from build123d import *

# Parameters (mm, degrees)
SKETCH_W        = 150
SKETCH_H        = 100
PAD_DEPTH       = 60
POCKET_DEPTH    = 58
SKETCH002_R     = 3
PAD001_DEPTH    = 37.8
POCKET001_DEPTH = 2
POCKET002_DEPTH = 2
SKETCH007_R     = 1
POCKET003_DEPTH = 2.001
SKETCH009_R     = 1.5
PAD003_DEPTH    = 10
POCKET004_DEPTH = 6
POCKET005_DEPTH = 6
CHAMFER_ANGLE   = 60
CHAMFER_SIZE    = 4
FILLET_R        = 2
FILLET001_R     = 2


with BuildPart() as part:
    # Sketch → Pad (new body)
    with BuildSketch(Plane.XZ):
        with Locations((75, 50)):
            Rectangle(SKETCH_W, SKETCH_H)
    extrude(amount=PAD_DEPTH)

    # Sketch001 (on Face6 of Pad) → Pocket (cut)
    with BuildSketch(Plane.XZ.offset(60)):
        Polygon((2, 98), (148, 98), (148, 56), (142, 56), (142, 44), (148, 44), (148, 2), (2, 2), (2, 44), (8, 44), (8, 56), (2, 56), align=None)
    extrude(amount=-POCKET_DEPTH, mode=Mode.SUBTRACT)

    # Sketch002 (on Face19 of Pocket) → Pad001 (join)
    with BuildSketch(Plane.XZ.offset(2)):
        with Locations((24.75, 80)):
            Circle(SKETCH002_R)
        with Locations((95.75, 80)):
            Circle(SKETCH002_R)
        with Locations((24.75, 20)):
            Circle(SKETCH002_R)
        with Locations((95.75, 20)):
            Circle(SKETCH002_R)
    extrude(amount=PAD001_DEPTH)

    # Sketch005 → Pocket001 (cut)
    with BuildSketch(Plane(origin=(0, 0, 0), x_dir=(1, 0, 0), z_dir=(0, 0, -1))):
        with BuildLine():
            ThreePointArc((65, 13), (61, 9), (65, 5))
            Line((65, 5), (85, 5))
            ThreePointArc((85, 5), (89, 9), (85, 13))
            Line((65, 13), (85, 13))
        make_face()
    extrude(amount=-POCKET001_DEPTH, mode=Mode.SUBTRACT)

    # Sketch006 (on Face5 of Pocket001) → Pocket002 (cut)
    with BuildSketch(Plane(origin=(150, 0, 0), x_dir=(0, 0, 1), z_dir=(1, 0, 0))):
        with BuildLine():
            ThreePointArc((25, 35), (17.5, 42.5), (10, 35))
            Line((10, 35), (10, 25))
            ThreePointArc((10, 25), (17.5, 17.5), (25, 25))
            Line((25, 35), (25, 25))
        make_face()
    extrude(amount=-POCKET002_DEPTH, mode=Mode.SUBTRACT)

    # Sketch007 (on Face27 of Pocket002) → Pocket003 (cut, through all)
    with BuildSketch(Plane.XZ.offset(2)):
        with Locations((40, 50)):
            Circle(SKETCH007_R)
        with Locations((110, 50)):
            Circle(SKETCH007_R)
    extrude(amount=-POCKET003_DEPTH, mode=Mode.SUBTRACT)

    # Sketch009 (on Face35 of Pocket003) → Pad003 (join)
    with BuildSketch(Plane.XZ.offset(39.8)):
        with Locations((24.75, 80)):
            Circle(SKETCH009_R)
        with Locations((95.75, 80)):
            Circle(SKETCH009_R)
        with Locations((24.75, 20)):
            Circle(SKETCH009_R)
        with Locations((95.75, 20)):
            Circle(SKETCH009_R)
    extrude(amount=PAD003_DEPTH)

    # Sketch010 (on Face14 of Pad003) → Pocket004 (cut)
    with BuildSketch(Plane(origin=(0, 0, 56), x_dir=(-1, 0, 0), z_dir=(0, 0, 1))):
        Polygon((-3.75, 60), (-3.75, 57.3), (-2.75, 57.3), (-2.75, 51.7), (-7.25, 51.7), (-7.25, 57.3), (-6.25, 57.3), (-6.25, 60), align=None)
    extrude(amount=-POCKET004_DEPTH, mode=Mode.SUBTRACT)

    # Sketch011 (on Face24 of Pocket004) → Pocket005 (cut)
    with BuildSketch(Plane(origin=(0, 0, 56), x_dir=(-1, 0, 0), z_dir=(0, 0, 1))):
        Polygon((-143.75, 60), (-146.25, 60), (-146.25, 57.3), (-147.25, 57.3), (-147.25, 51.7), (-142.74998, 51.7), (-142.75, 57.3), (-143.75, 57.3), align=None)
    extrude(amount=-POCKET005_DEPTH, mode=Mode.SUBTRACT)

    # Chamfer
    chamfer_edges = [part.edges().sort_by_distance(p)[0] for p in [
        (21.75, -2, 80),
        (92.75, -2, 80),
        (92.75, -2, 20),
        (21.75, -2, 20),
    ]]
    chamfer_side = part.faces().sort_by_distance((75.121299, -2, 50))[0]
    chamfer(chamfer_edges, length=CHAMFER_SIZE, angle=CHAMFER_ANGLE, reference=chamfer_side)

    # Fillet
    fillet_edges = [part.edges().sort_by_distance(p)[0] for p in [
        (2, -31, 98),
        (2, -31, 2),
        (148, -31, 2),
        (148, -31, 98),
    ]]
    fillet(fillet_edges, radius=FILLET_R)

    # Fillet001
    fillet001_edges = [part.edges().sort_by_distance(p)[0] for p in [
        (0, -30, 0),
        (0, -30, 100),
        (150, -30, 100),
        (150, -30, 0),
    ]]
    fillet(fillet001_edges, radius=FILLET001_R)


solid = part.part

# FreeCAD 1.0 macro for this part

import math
import FreeCAD as App
import Part
import Sketcher
from FreeCAD import Vector
Q = App.Units.Quantity


def edges_at(feature, points):
    """Names of the edges that pass closest to the given points."""
    edges = feature.Shape.Edges
    near = lambda p: min(range(len(edges)), key=lambda i: edges[i].distToShape(Part.Vertex(*p))[0])
    return sorted({f"Edge{near(p) + 1}" for p in points})

doc = App.newDocument("Part")
body = doc.addObject("PartDesign::Body", "Body")

sketch1 = doc.addObject("Sketcher::SketchObject", "Sketch")
body.addObject(sketch1)
sketch1.AttachmentSupport = (doc.XZ_Plane, [""])
sketch1.MapMode = "FlatFace"
sketch1.addGeometry([
    Part.LineSegment(Vector(0, 100, 0), Vector(0, 0, 0)),
    Part.LineSegment(Vector(0, 0, 0), Vector(150, 0, 0)),
    Part.LineSegment(Vector(150, 0, 0), Vector(150, 100, 0)),
    Part.LineSegment(Vector(150, 100, 0), Vector(0, 100, 0)),
], False)
sketch1.addConstraint([
    Sketcher.Constraint("Coincident", 0, 2, 1, 1),
    Sketcher.Constraint("Coincident", 1, 2, 2, 1),
    Sketcher.Constraint("Coincident", 2, 2, 3, 1),
    Sketcher.Constraint("Coincident", 3, 2, 0, 1),
    Sketcher.Constraint("Vertical", 0),
    Sketcher.Constraint("Horizontal", 1),
    Sketcher.Constraint("Vertical", 2),
    Sketcher.Constraint("Horizontal", 3),
    Sketcher.Constraint("Coincident", 0, 2, -1, 1),
    Sketcher.Constraint("DistanceX", 1, 1, 1, 2, Q("150 mm")),
    Sketcher.Constraint("DistanceY", 0, 2, 0, 1, Q("100 mm")),
])
pad1 = doc.addObject("PartDesign::Pad", "Pad")
body.addObject(pad1)
pad1.Profile = sketch1
pad1.Length = 60

sketch2 = doc.addObject("Sketcher::SketchObject", "Sketch001")
body.addObject(sketch2)
sketch2.AttachmentSupport = (doc.XZ_Plane, [""])
sketch2.MapMode = "FlatFace"
sketch2.AttachmentOffset = App.Placement(Vector(0, 0, 60), App.Rotation())
sketch2.addGeometry([
    Part.LineSegment(Vector(148, 98, 0), Vector(2, 98, 0)),
    Part.LineSegment(Vector(2, 98, 0), Vector(2, 56, 0)),
    Part.LineSegment(Vector(2, 56, 0), Vector(8, 56, 0)),
    Part.LineSegment(Vector(8, 56, 0), Vector(8, 44, 0)),
    Part.LineSegment(Vector(8, 44, 0), Vector(2, 44, 0)),
    Part.LineSegment(Vector(2, 44, 0), Vector(2, 2, 0)),
    Part.LineSegment(Vector(2, 2, 0), Vector(148, 2, 0)),
    Part.LineSegment(Vector(148, 2, 0), Vector(148, 44, 0)),
    Part.LineSegment(Vector(148, 44, 0), Vector(142, 44, 0)),
    Part.LineSegment(Vector(142, 44, 0), Vector(142, 56, 0)),
    Part.LineSegment(Vector(142, 56, 0), Vector(148, 56, 0)),
    Part.LineSegment(Vector(148, 56, 0), Vector(148, 98, 0)),
], False)
sketch2.addConstraint([
    Sketcher.Constraint("Coincident", 0, 2, 1, 1),
    Sketcher.Constraint("Coincident", 1, 2, 2, 1),
    Sketcher.Constraint("Coincident", 2, 2, 3, 1),
    Sketcher.Constraint("Coincident", 3, 2, 4, 1),
    Sketcher.Constraint("Coincident", 4, 2, 5, 1),
    Sketcher.Constraint("Coincident", 5, 2, 6, 1),
    Sketcher.Constraint("Coincident", 6, 2, 7, 1),
    Sketcher.Constraint("Coincident", 7, 2, 8, 1),
    Sketcher.Constraint("Coincident", 8, 2, 9, 1),
    Sketcher.Constraint("Coincident", 9, 2, 10, 1),
    Sketcher.Constraint("Coincident", 10, 2, 11, 1),
    Sketcher.Constraint("Coincident", 11, 2, 0, 1),
    Sketcher.Constraint("Horizontal", 0),
    Sketcher.Constraint("Vertical", 1),
    Sketcher.Constraint("Horizontal", 2),
    Sketcher.Constraint("Vertical", 3),
    Sketcher.Constraint("Horizontal", 4),
    Sketcher.Constraint("Vertical", 5),
    Sketcher.Constraint("Horizontal", 6),
    Sketcher.Constraint("Vertical", 7),
    Sketcher.Constraint("Horizontal", 8),
    Sketcher.Constraint("Vertical", 9),
    Sketcher.Constraint("Horizontal", 10),
    Sketcher.Constraint("Vertical", 11),
    Sketcher.Constraint("Horizontal", 4, 2, 7, 2),
    Sketcher.Constraint("Horizontal", 2, 2, 9, 2),
    Sketcher.Constraint("Vertical", 1, 2, 4, 2),
    Sketcher.Constraint("Vertical", 7, 2, 10, 2),
    Sketcher.Constraint("Equal", 4, 8),
    Sketcher.Constraint("Equal", 1, 5),
    Sketcher.Constraint("DistanceX", 0, 2, 0, 1, Q("146 mm")),
    Sketcher.Constraint("DistanceX", 2, 1, 2, 2, Q("6 mm")),
    Sketcher.Constraint("DistanceY", 1, 2, 1, 1, Q("42 mm")),
    Sketcher.Constraint("DistanceY", 3, 2, 3, 1, Q("12 mm")),
    Sketcher.Constraint("DistanceX", -1, 1, 0, 2, Q("2 mm")),
    Sketcher.Constraint("DistanceY", -1, 1, 0, 2, Q("98 mm")),
])
pocket1 = doc.addObject("PartDesign::Pocket", "Pocket")
body.addObject(pocket1)
pocket1.Profile = sketch2
pocket1.Length = 58

sketch3 = doc.addObject("Sketcher::SketchObject", "Sketch002")
body.addObject(sketch3)
sketch3.AttachmentSupport = (doc.XZ_Plane, [""])
sketch3.MapMode = "FlatFace"
sketch3.AttachmentOffset = App.Placement(Vector(0, 0, 2), App.Rotation())
sketch3.addGeometry([
    Part.Circle(Vector(24.8, 80, 0), Vector(0, 0, 1), 3),
    Part.Circle(Vector(95.8, 80, 0), Vector(0, 0, 1), 3),
    Part.Circle(Vector(24.8, 20, 0), Vector(0, 0, 1), 3),
    Part.Circle(Vector(95.8, 20, 0), Vector(0, 0, 1), 3),
], False)
sketch3.addConstraint([
    Sketcher.Constraint("Equal", 0, 1),
    Sketcher.Constraint("Equal", 1, 2),
    Sketcher.Constraint("Equal", 2, 3),
    Sketcher.Constraint("Horizontal", 0, 3, 1, 3),
    Sketcher.Constraint("Horizontal", 2, 3, 3, 3),
    Sketcher.Constraint("Vertical", 0, 3, 2, 3),
    Sketcher.Constraint("Vertical", 1, 3, 3, 3),
    Sketcher.Constraint("Diameter", 0, Q("6 mm")),
    Sketcher.Constraint("DistanceY", -1, 1, 0, 3, Q("80 mm")),
    Sketcher.Constraint("DistanceY", -1, 1, 2, 3, Q("20 mm")),
    Sketcher.Constraint("DistanceX", 0, 3, 1, 3, Q("71 mm")),
    Sketcher.Constraint("DistanceX", -1, 1, 0, 3, Q("24.75 mm")),
])
pad2 = doc.addObject("PartDesign::Pad", "Pad001")
body.addObject(pad2)
pad2.Profile = sketch3
pad2.Length = 37.8

sketch4 = doc.addObject("Sketcher::SketchObject", "Sketch003")
body.addObject(sketch4)
sketch4.AttachmentSupport = (doc.XY_Plane, [""])
sketch4.MapMode = "FlatFace"
sketch4.addGeometry([
    Part.ArcOfCircle(Part.Circle(Vector(65, -9, 0), Vector(0, 0, 1), 4), math.radians(90), math.radians(270)),
    Part.LineSegment(Vector(65, -5, 0), Vector(85, -5, 0)),
    Part.ArcOfCircle(Part.Circle(Vector(85, -9, 0), Vector(0, 0, 1), 4), math.radians(-90), math.radians(90)),
    Part.LineSegment(Vector(85, -13, 0), Vector(65, -13, 0)),
], False)
sketch4.addConstraint([
    Sketcher.Constraint("Tangent", 0, 1, 1, 1),
    Sketcher.Constraint("Tangent", 1, 2, 2, 2),
    Sketcher.Constraint("Tangent", 2, 1, 3, 1),
    Sketcher.Constraint("Tangent", 3, 2, 0, 2),
    Sketcher.Constraint("Horizontal", 1),
    Sketcher.Constraint("Horizontal", 3),
    Sketcher.Constraint("Radius", 0, Q("4 mm")),
    Sketcher.Constraint("DistanceX", 1, 1, 1, 2, Q("20 mm")),
    Sketcher.Constraint("DistanceX", -1, 1, 0, 3, Q("65 mm")),
    Sketcher.Constraint("DistanceY", 0, 3, -1, 1, Q("9 mm")),
])
pocket2 = doc.addObject("PartDesign::Pocket", "Pocket001")
body.addObject(pocket2)
pocket2.Profile = sketch4
pocket2.Length = 2
pocket2.Reversed = True

sketch5 = doc.addObject("Sketcher::SketchObject", "Sketch004")
body.addObject(sketch5)
sketch5.AttachmentSupport = (doc.YZ_Plane, [""])
sketch5.MapMode = "FlatFace"
sketch5.AttachmentOffset = App.Placement(Vector(0, 0, 150), App.Rotation())
sketch5.addGeometry([
    Part.ArcOfCircle(Part.Circle(Vector(-35, 18, 0), Vector(0, 0, 1), 8), math.radians(90), math.radians(270)),
    Part.LineSegment(Vector(-35, 10, 0), Vector(-25, 10, 0)),
    Part.ArcOfCircle(Part.Circle(Vector(-25, 18, 0), Vector(0, 0, 1), 8), math.radians(-90), math.radians(90)),
    Part.LineSegment(Vector(-25, 25, 0), Vector(-35, 25, 0)),
], False)
sketch5.addConstraint([
    Sketcher.Constraint("Tangent", 0, 2, 1, 1),
    Sketcher.Constraint("Tangent", 1, 2, 2, 1),
    Sketcher.Constraint("Tangent", 2, 2, 3, 1),
    Sketcher.Constraint("Tangent", 3, 2, 0, 1),
    Sketcher.Constraint("Horizontal", 1),
    Sketcher.Constraint("Horizontal", 3),
    Sketcher.Constraint("Radius", 0, Q("7.5 mm")),
    Sketcher.Constraint("DistanceX", 1, 1, 1, 2, Q("10 mm")),
    Sketcher.Constraint("DistanceX", 0, 3, -1, 1, Q("35 mm")),
    Sketcher.Constraint("DistanceY", -1, 1, 0, 2, Q("10 mm")),
])
pocket3 = doc.addObject("PartDesign::Pocket", "Pocket002")
body.addObject(pocket3)
pocket3.Profile = sketch5
pocket3.Length = 2

sketch6 = doc.addObject("Sketcher::SketchObject", "Sketch005")
body.addObject(sketch6)
sketch6.AttachmentSupport = (doc.XZ_Plane, [""])
sketch6.MapMode = "FlatFace"
sketch6.AttachmentOffset = App.Placement(Vector(0, 0, 2), App.Rotation())
sketch6.addGeometry([
    Part.Circle(Vector(40, 50, 0), Vector(0, 0, 1), 1),
    Part.Circle(Vector(110, 50, 0), Vector(0, 0, 1), 1),
], False)
sketch6.addConstraint([
    Sketcher.Constraint("Equal", 0, 1),
    Sketcher.Constraint("Horizontal", 0, 3, 1, 3),
    Sketcher.Constraint("Diameter", 0, Q("2 mm")),
    Sketcher.Constraint("DistanceX", -1, 1, 0, 3, Q("40 mm")),
    Sketcher.Constraint("DistanceY", -1, 1, 0, 3, Q("50 mm")),
    Sketcher.Constraint("DistanceX", -1, 1, 1, 3, Q("110 mm")),
])
pocket4 = doc.addObject("PartDesign::Pocket", "Pocket003")
body.addObject(pocket4)
pocket4.Profile = sketch6
pocket4.Type = "ThroughAll"

sketch7 = doc.addObject("Sketcher::SketchObject", "Sketch006")
body.addObject(sketch7)
sketch7.AttachmentSupport = (doc.XZ_Plane, [""])
sketch7.MapMode = "FlatFace"
sketch7.AttachmentOffset = App.Placement(Vector(0, 0, 39.8), App.Rotation())
sketch7.addGeometry([
    Part.Circle(Vector(24.8, 80, 0), Vector(0, 0, 1), 1.5),
    Part.Circle(Vector(95.8, 80, 0), Vector(0, 0, 1), 1.5),
    Part.Circle(Vector(24.8, 20, 0), Vector(0, 0, 1), 1.5),
    Part.Circle(Vector(95.8, 20, 0), Vector(0, 0, 1), 1.5),
], False)
sketch7.addConstraint([
    Sketcher.Constraint("Equal", 0, 1),
    Sketcher.Constraint("Equal", 1, 2),
    Sketcher.Constraint("Equal", 2, 3),
    Sketcher.Constraint("Horizontal", 0, 3, 1, 3),
    Sketcher.Constraint("Horizontal", 2, 3, 3, 3),
    Sketcher.Constraint("Vertical", 0, 3, 2, 3),
    Sketcher.Constraint("Vertical", 1, 3, 3, 3),
    Sketcher.Constraint("Diameter", 0, Q("3 mm")),
    Sketcher.Constraint("DistanceY", -1, 1, 0, 3, Q("80 mm")),
    Sketcher.Constraint("DistanceY", -1, 1, 2, 3, Q("20 mm")),
    Sketcher.Constraint("DistanceX", 0, 3, 1, 3, Q("71 mm")),
    Sketcher.Constraint("DistanceX", -1, 1, 0, 3, Q("24.75 mm")),
])
pad3 = doc.addObject("PartDesign::Pad", "Pad002")
body.addObject(pad3)
pad3.Profile = sketch7
pad3.Length = 10

sketch8 = doc.addObject("Sketcher::SketchObject", "Sketch007")
body.addObject(sketch8)
sketch8.AttachmentSupport = (doc.XY_Plane, [""])
sketch8.MapMode = "FlatFace"
sketch8.AttachmentOffset = App.Placement(Vector(0, 0, 56), App.Rotation())
sketch8.addGeometry([
    Part.LineSegment(Vector(3.8, -57.3, 0), Vector(3.8, -60, 0)),
    Part.LineSegment(Vector(3.8, -60, 0), Vector(6.2, -60, 0)),
    Part.LineSegment(Vector(6.2, -60, 0), Vector(6.2, -57.3, 0)),
    Part.LineSegment(Vector(6.2, -57.3, 0), Vector(7.2, -57.3, 0)),
    Part.LineSegment(Vector(7.2, -57.3, 0), Vector(7.2, -51.7, 0)),
    Part.LineSegment(Vector(7.2, -51.7, 0), Vector(2.8, -51.7, 0)),
    Part.LineSegment(Vector(2.8, -51.7, 0), Vector(2.8, -57.3, 0)),
    Part.LineSegment(Vector(2.8, -57.3, 0), Vector(3.8, -57.3, 0)),
], False)
sketch8.addConstraint([
    Sketcher.Constraint("Coincident", 0, 2, 1, 1),
    Sketcher.Constraint("Coincident", 1, 2, 2, 1),
    Sketcher.Constraint("Coincident", 2, 2, 3, 1),
    Sketcher.Constraint("Coincident", 3, 2, 4, 1),
    Sketcher.Constraint("Coincident", 4, 2, 5, 1),
    Sketcher.Constraint("Coincident", 5, 2, 6, 1),
    Sketcher.Constraint("Coincident", 6, 2, 7, 1),
    Sketcher.Constraint("Coincident", 7, 2, 0, 1),
    Sketcher.Constraint("Vertical", 0),
    Sketcher.Constraint("Horizontal", 1),
    Sketcher.Constraint("Vertical", 2),
    Sketcher.Constraint("Horizontal", 3),
    Sketcher.Constraint("Vertical", 4),
    Sketcher.Constraint("Horizontal", 5),
    Sketcher.Constraint("Vertical", 6),
    Sketcher.Constraint("Horizontal", 7),
    Sketcher.Constraint("Horizontal", 3, 2, 6, 2),
    Sketcher.Constraint("Equal", 3, 7),
    Sketcher.Constraint("DistanceX", 3, 1, 3, 2, Q("1 mm")),
    Sketcher.Constraint("DistanceX", 1, 1, 1, 2, Q("2.5 mm")),
    Sketcher.Constraint("DistanceY", 0, 2, 0, 1, Q("2.7 mm")),
    Sketcher.Constraint("DistanceY", 4, 1, 4, 2, Q("5.6 mm")),
    Sketcher.Constraint("DistanceY", 0, 2, -1, 1, Q("60 mm")),
    Sketcher.Constraint("DistanceX", -1, 1, 0, 2, Q("3.75 mm")),
])
pocket5 = doc.addObject("PartDesign::Pocket", "Pocket004")
body.addObject(pocket5)
pocket5.Profile = sketch8
pocket5.Length = 6

sketch9 = doc.addObject("Sketcher::SketchObject", "Sketch008")
body.addObject(sketch9)
sketch9.AttachmentSupport = (doc.XY_Plane, [""])
sketch9.MapMode = "FlatFace"
sketch9.AttachmentOffset = App.Placement(Vector(0, 0, 56), App.Rotation())
sketch9.addGeometry([
    Part.LineSegment(Vector(143.8, -60, 0), Vector(146.2, -60, 0)),
    Part.LineSegment(Vector(146.2, -60, 0), Vector(146.2, -57.3, 0)),
    Part.LineSegment(Vector(146.2, -57.3, 0), Vector(147.2, -57.3, 0)),
    Part.LineSegment(Vector(147.2, -57.3, 0), Vector(147.2, -51.7, 0)),
    Part.LineSegment(Vector(147.2, -51.7, 0), Vector(142.7, -51.7, 0)),
    Part.LineSegment(Vector(142.7, -51.7, 0), Vector(142.8, -57.3, 0)),
    Part.LineSegment(Vector(142.8, -57.3, 0), Vector(143.8, -57.3, 0)),
    Part.LineSegment(Vector(143.8, -57.3, 0), Vector(143.8, -60, 0)),
], False)
sketch9.addConstraint([
    Sketcher.Constraint("Coincident", 0, 2, 1, 1),
    Sketcher.Constraint("Coincident", 1, 2, 2, 1),
    Sketcher.Constraint("Coincident", 2, 2, 3, 1),
    Sketcher.Constraint("Coincident", 3, 2, 4, 1),
    Sketcher.Constraint("Coincident", 4, 2, 5, 1),
    Sketcher.Constraint("Coincident", 5, 2, 6, 1),
    Sketcher.Constraint("Coincident", 6, 2, 7, 1),
    Sketcher.Constraint("Coincident", 7, 2, 0, 1),
    Sketcher.Constraint("Horizontal", 0),
    Sketcher.Constraint("Vertical", 1),
    Sketcher.Constraint("Horizontal", 2),
    Sketcher.Constraint("Vertical", 3),
    Sketcher.Constraint("Horizontal", 4),
    Sketcher.Constraint("Horizontal", 6),
    Sketcher.Constraint("Vertical", 7),
    Sketcher.Constraint("Horizontal", 2, 2, 5, 2),
    Sketcher.Constraint("Equal", 2, 6),
    Sketcher.Constraint("DistanceX", 2, 1, 2, 2, Q("1 mm")),
    Sketcher.Constraint("DistanceX", 0, 1, 0, 2, Q("2.5 mm")),
    Sketcher.Constraint("DistanceY", 1, 1, 1, 2, Q("2.7 mm")),
    Sketcher.Constraint("DistanceY", 3, 1, 3, 2, Q("5.6 mm")),
    Sketcher.Constraint("DistanceY", 0, 2, -1, 1, Q("60 mm")),
    Sketcher.Constraint("DistanceX", -1, 1, 0, 2, Q("146.25 mm")),
    Sketcher.Constraint("DistanceX", 4, 2, 4, 1, Q("4.50002 mm")),
])
pocket6 = doc.addObject("PartDesign::Pocket", "Pocket005")
body.addObject(pocket6)
pocket6.Profile = sketch9
pocket6.Length = 6
doc.recompute()

chamfer = doc.addObject("PartDesign::Chamfer", "Chamfer")
body.addObject(chamfer)
chamfer.Base = (pocket6, edges_at(pocket6, [
    (21.75, -2, 80),
    (92.75, -2, 80),
    (92.75, -2, 20),
    (21.75, -2, 20),
]))
chamfer.ChamferType = "Distance and Angle"
chamfer.Size = 4
chamfer.Angle = 60
doc.recompute()

fillet = doc.addObject("PartDesign::Fillet", "Fillet")
body.addObject(fillet)
fillet.Base = (chamfer, edges_at(chamfer, [
    (2, -31, 98),
    (2, -31, 2),
    (148, -31, 2),
    (148, -31, 98),
]))
fillet.Radius = 2
doc.recompute()

fillet2 = doc.addObject("PartDesign::Fillet", "Fillet001")
body.addObject(fillet2)
fillet2.Base = (fillet, edges_at(fillet, [
    (0, -30, 0),
    (0, -30, 100),
    (150, -30, 100),
    (150, -30, 0),
]))
fillet2.Radius = 2

doc.recompute()
